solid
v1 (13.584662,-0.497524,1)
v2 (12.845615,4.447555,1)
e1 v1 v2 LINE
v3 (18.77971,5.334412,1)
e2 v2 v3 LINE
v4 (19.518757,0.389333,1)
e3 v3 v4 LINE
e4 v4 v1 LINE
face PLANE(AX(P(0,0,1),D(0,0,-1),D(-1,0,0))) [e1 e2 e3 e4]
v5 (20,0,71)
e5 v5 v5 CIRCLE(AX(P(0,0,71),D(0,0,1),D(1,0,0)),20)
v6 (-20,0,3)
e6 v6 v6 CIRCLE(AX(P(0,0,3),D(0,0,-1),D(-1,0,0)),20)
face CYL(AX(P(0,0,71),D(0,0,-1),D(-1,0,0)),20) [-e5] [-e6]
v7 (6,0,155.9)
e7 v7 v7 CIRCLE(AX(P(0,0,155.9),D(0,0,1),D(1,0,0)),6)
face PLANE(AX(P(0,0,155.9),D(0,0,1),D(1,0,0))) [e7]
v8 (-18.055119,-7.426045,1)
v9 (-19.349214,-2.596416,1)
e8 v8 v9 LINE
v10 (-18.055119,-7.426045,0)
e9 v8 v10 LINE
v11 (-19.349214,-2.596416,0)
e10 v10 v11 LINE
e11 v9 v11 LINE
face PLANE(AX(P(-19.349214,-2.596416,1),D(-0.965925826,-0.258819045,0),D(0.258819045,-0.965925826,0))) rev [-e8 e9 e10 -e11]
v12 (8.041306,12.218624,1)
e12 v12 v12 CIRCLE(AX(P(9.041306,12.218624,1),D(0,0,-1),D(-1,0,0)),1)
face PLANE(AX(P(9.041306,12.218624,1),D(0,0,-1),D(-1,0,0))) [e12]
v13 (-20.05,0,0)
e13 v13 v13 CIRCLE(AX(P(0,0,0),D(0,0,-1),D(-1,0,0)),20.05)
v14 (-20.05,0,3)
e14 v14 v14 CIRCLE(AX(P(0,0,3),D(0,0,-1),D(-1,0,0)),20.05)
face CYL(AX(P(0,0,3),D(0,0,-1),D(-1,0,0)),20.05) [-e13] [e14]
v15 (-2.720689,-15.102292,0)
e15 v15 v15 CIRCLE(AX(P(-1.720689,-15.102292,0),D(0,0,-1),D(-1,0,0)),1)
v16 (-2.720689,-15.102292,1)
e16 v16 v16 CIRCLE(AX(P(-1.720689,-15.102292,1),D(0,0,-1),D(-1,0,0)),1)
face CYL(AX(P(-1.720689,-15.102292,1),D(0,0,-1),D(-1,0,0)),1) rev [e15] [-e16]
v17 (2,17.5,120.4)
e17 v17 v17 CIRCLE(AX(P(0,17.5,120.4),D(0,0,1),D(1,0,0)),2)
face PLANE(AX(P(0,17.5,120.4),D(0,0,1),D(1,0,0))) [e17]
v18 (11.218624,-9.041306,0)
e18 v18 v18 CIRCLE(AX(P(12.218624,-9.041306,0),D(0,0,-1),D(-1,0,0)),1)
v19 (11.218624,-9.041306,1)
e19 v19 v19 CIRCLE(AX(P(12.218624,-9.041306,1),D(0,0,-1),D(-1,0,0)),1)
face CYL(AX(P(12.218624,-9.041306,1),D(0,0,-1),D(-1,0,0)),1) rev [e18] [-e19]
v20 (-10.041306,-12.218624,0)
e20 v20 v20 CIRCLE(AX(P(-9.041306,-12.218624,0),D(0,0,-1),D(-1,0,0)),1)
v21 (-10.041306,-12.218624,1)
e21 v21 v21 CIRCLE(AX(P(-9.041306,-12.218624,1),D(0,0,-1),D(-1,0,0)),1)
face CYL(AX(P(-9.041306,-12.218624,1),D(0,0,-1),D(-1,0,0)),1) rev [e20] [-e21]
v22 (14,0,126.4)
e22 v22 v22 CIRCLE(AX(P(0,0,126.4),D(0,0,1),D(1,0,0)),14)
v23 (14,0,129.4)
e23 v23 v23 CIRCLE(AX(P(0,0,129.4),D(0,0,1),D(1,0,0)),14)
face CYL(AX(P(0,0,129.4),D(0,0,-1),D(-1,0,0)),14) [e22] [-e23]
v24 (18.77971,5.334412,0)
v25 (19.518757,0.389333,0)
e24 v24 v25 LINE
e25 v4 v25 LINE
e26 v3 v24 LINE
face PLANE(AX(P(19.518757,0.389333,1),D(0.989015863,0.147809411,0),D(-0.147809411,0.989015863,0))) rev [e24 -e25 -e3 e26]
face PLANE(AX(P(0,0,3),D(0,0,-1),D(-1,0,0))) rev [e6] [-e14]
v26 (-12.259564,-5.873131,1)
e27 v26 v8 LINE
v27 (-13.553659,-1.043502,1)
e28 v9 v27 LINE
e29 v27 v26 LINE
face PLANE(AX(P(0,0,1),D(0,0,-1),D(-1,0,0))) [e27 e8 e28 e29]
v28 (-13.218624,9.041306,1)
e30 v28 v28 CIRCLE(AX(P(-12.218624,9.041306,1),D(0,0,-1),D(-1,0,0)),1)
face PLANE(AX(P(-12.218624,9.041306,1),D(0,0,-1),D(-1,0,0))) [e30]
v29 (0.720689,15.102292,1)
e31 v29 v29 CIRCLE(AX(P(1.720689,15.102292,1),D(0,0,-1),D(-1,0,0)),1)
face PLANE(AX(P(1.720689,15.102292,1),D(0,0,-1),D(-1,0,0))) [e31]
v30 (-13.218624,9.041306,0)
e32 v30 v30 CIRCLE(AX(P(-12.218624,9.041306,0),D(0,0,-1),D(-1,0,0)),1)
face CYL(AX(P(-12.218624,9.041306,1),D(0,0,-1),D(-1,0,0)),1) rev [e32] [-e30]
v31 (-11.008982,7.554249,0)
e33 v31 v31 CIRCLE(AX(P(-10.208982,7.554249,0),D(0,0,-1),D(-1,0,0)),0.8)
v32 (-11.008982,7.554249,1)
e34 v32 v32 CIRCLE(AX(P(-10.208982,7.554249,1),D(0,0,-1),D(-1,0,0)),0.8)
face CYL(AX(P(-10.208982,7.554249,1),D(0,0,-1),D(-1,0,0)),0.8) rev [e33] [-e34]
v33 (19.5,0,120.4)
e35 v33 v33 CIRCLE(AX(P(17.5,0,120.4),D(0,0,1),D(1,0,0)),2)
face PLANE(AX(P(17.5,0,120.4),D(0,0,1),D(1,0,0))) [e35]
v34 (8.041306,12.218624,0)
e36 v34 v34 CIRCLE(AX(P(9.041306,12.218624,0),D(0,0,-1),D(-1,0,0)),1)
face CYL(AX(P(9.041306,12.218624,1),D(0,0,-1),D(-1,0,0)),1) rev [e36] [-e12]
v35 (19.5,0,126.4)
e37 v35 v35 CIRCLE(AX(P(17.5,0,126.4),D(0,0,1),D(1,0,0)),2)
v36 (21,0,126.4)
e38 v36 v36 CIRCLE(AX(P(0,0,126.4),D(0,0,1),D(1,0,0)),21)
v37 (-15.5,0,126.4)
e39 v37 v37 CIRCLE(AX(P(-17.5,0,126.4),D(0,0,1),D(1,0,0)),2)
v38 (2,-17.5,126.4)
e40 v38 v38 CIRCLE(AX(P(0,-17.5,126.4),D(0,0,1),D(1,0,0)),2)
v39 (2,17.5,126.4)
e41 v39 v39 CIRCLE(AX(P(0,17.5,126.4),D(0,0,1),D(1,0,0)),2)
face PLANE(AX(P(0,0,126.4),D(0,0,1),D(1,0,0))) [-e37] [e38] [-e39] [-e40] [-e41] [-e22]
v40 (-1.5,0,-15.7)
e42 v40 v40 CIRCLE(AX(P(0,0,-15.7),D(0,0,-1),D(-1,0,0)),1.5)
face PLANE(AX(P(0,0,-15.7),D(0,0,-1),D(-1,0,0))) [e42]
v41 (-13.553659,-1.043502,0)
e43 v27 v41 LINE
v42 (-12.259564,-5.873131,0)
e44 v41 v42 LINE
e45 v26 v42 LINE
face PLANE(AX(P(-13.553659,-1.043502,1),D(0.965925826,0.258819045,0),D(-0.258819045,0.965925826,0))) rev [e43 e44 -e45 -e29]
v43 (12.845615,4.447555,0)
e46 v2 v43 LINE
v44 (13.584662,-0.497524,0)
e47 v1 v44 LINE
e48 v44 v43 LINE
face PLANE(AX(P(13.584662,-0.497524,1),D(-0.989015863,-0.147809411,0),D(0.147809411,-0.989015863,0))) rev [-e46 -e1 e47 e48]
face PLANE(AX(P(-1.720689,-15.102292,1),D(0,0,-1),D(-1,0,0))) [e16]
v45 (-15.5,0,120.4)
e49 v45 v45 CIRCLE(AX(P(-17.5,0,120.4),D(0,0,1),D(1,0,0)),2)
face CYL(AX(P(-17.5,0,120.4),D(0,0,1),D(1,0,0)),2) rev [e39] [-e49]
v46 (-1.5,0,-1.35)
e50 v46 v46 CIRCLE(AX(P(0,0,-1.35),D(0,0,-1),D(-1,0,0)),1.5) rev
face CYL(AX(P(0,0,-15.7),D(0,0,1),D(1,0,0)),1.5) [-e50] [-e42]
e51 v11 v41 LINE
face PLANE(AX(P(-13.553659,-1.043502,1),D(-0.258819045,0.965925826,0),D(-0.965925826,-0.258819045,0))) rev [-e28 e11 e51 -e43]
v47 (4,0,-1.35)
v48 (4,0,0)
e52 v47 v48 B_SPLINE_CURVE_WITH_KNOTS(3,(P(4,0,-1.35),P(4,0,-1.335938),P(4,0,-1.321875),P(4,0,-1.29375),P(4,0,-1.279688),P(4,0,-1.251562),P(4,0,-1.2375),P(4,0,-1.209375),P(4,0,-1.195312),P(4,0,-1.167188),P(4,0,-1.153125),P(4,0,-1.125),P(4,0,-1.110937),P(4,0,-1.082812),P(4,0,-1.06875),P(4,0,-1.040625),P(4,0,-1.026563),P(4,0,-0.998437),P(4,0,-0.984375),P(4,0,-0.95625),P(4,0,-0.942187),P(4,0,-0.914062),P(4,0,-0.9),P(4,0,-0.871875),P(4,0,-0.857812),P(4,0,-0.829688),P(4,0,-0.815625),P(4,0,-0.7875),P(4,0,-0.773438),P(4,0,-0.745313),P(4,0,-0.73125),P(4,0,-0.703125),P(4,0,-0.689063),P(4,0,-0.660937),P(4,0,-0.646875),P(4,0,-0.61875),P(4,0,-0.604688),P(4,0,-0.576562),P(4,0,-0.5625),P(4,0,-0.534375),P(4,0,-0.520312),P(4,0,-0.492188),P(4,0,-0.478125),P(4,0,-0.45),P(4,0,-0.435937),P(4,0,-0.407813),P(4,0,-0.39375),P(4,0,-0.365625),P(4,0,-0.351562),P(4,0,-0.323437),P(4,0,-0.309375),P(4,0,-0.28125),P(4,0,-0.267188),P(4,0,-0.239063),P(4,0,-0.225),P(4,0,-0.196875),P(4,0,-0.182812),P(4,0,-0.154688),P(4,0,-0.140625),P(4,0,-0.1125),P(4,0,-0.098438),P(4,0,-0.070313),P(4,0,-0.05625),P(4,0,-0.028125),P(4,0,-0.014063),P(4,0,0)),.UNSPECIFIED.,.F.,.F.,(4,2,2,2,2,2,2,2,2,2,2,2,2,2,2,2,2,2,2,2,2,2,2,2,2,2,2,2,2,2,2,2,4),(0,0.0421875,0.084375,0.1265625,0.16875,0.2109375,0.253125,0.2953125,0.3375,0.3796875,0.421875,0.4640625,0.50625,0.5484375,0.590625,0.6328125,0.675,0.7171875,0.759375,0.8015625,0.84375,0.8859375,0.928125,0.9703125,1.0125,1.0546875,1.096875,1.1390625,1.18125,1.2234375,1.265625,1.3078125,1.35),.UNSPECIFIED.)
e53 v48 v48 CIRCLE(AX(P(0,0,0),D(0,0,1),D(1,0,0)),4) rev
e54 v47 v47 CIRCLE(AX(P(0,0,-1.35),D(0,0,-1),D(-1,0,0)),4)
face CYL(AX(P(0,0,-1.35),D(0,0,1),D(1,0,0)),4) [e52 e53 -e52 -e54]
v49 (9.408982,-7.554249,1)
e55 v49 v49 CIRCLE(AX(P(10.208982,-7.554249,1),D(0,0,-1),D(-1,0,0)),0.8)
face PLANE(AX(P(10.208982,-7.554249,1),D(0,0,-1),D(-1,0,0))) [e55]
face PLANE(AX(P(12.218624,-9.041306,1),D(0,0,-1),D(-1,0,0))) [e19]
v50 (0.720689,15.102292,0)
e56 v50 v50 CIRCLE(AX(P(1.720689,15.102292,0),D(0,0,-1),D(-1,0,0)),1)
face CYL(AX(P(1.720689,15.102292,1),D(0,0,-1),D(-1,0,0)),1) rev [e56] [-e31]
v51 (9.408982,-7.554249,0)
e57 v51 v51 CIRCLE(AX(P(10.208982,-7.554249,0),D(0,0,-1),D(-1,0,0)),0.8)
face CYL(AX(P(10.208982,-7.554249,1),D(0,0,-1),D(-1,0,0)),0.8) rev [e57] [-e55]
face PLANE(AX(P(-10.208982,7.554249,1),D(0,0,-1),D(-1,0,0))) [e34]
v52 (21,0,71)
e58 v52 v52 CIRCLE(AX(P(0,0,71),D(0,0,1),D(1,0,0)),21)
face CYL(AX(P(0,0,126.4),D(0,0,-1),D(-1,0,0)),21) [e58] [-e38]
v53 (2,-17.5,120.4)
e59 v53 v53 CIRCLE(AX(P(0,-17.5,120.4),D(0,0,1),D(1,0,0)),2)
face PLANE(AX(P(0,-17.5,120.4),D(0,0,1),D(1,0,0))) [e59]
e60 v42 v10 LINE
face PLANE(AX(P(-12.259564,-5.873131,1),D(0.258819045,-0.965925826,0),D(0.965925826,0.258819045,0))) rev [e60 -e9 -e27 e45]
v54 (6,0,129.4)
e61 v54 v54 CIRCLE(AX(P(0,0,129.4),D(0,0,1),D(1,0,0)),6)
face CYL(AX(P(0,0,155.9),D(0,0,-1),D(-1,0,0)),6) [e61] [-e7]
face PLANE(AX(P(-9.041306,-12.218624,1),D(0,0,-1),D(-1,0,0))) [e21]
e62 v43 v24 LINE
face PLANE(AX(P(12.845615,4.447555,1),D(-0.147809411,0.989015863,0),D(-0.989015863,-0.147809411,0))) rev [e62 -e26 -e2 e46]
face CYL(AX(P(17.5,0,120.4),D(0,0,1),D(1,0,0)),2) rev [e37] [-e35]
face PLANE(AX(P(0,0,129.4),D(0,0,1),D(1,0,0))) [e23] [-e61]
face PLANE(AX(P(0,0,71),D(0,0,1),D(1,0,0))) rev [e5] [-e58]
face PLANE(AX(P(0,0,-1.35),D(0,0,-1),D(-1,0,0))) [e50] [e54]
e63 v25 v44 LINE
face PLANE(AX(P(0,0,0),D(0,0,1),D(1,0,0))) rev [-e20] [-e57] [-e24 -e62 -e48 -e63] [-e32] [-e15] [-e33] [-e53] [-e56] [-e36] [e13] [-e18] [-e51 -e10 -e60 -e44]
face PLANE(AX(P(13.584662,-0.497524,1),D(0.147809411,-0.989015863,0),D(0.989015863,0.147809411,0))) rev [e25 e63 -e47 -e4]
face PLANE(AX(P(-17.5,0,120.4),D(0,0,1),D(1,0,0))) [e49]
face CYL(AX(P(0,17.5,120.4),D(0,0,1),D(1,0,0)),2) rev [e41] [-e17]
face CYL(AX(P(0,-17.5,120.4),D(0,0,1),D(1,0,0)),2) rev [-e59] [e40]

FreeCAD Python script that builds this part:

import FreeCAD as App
import Part
import Sketcher
from FreeCAD import Vector
Q = App.Units.Quantity

doc = App.newDocument("Part")
params = doc.addObject("Spreadsheet::Sheet", "Params")
for row, (alias, value) in enumerate([
    ("sketch1_diameter", "40 mm"),
    ("pad1_length", "71 mm"),
    ("sketch2_diameter", "8 mm"),
    ("pad2_length", "1.35 mm"),
    ("sketch3_diameter", "3 mm"),
    ("pad3_length", "15.7 mm"),
    ("sketch4_diameter", "40.1 mm"),
    ("pad4_length", "3 mm"),
    ("sketch5_diameter", "2 mm"),
    ("sketch5_diameter2", "1.6 mm"),
    ("sketch5_length", "6 mm"),
    ("sketch5_length2", "5 mm"),
    ("pocket1_length", "1 mm"),
    ("sketch6_diameter", "42 mm"),
    ("pad5_length", "55.4 mm"),
    ("sketch7_diameter", "28 mm"),
    ("pad6_length", "3 mm"),
    ("sketch8_diameter", "12 mm"),
    ("pad7_length", "26.5 mm"),
    ("sketch9_diameter", "4 mm"),
    ("pocket2_length", "6 mm"),
], start=1):
    params.set(f"A{row}", alias)
    params.set(f"B{row}", "=" + value)
    params.setAlias(f"B{row}", alias)

body = doc.addObject("PartDesign::Body", "Body")

sketch1 = body.newObject("Sketcher::SketchObject", "Sketch")
sketch1.AttachmentSupport = (doc.getObject("XY_Plane"), [""])
sketch1.MapMode = "FlatFace"
sketch1.addGeometry(Part.Circle(Vector(0, 0, 0), Vector(0, 0, 1), 20), False)
sketch1.addConstraint([
    Sketcher.Constraint("Coincident", 0, 3, -1, 1),
    Sketcher.Constraint("Diameter", 0, Q("40 mm")),
])
sketch1.setExpression("Constraints[1]", "Params.sketch1_diameter")
pad1 = body.newObject("PartDesign::Pad", "Pad")
pad1.Profile = sketch1
pad1.setExpression("Length", "Params.pad1_length")

sketch2 = body.newObject("Sketcher::SketchObject", "Sketch001")
sketch2.AttachmentSupport = (doc.getObject("XY_Plane"), [""])
sketch2.MapMode = "FlatFace"
sketch2.addGeometry(Part.Circle(Vector(0, 0, 0), Vector(0, 0, 1), 4), False)
sketch2.addConstraint([
    Sketcher.Constraint("Coincident", 0, 3, -1, 1),
    Sketcher.Constraint("Diameter", 0, Q("8 mm")),
])
sketch2.setExpression("Constraints[1]", "Params.sketch2_diameter")
pad2 = body.newObject("PartDesign::Pad", "Pad001")
pad2.Profile = sketch2
pad2.setExpression("Length", "Params.pad2_length")
pad2.Reversed = True

sketch3 = body.newObject("Sketcher::SketchObject", "Sketch002")
sketch3.AttachmentSupport = (doc.getObject("XY_Plane"), [""])
sketch3.MapMode = "FlatFace"
sketch3.addGeometry(Part.Circle(Vector(0, 0, 0), Vector(0, 0, 1), 1.5), False)
sketch3.addConstraint([
    Sketcher.Constraint("Coincident", 0, 3, -1, 1),
    Sketcher.Constraint("Diameter", 0, Q("3 mm")),
])
sketch3.setExpression("Constraints[1]", "Params.sketch3_diameter")
pad3 = body.newObject("PartDesign::Pad", "Pad002")
pad3.Profile = sketch3
pad3.setExpression("Length", "Params.pad3_length")
pad3.Reversed = True

sketch4 = body.newObject("Sketcher::SketchObject", "Sketch003")
sketch4.AttachmentSupport = (doc.getObject("XY_Plane"), [""])
sketch4.MapMode = "FlatFace"
sketch4.addGeometry(Part.Circle(Vector(0, 0, 0), Vector(0, 0, 1), 20), False)
sketch4.addConstraint([
    Sketcher.Constraint("Coincident", 0, 3, -1, 1),
    Sketcher.Constraint("Diameter", 0, Q("40.1 mm")),
])
sketch4.setExpression("Constraints[1]", "Params.sketch4_diameter")
pad4 = body.newObject("PartDesign::Pad", "Pad003")
pad4.Profile = sketch4
pad4.setExpression("Length", "Params.pad4_length")

sketch5 = body.newObject("Sketcher::SketchObject", "Sketch004")
sketch5.AttachmentSupport = (doc.getObject("XY_Plane"), [""])
sketch5.MapMode = "FlatFace"
sketch5.addGeometry([
    Part.Circle(Vector(-1.7, -15.1, 0), Vector(0, 0, 1), 1),
    Part.Circle(Vector(1.7, 15.1, 0), Vector(0, 0, 1), 1),
    Part.Circle(Vector(12.2, -9, 0), Vector(0, 0, 1), 1),
    Part.Circle(Vector(-10.2, 7.6, 0), Vector(0, 0, 1), 0.8),
    Part.Circle(Vector(10.2, -7.6, 0), Vector(0, 0, 1), 0.8),
    Part.Circle(Vector(9, 12.2, 0), Vector(0, 0, 1), 1),
    Part.Circle(Vector(-12.2, 9, 0), Vector(0, 0, 1), 1),
    Part.Circle(Vector(-9, -12.2, 0), Vector(0, 0, 1), 1),
    Part.LineSegment(Vector(-19.3, -2.6, 0), Vector(-13.6, -1, 0)),
    Part.LineSegment(Vector(-13.6, -1, 0), Vector(-12.3, -5.9, 0)),
    Part.LineSegment(Vector(-12.3, -5.9, 0), Vector(-18.1, -7.4, 0)),
    Part.LineSegment(Vector(-18.1, -7.4, 0), Vector(-19.3, -2.6, 0)),
    Part.LineSegment(Vector(19.5, 0.4, 0), Vector(13.6, -0.5, 0)),
    Part.LineSegment(Vector(13.6, -0.5, 0), Vector(12.8, 4.4, 0)),
    Part.LineSegment(Vector(12.8, 4.4, 0), Vector(18.8, 5.3, 0)),
    Part.LineSegment(Vector(18.8, 5.3, 0), Vector(19.5, 0.4, 0)),
], False)
sketch5.addConstraint([
    Sketcher.Constraint("Coincident", 8, 2, 9, 1),
    Sketcher.Constraint("Coincident", 9, 2, 10, 1),
    Sketcher.Constraint("Coincident", 10, 2, 11, 1),
    Sketcher.Constraint("Coincident", 11, 2, 8, 1),
    Sketcher.Constraint("Coincident", 12, 2, 13, 1),
    Sketcher.Constraint("Coincident", 13, 2, 14, 1),
    Sketcher.Constraint("Coincident", 14, 2, 15, 1),
    Sketcher.Constraint("Coincident", 15, 2, 12, 1),
    Sketcher.Constraint("Equal", 0, 1),
    Sketcher.Constraint("Equal", 1, 2),
    Sketcher.Constraint("Equal", 3, 4),
    Sketcher.Constraint("Equal", 2, 5),
    Sketcher.Constraint("Equal", 5, 6),
    Sketcher.Constraint("Equal", 6, 7),
    Sketcher.Constraint("Symmetric", 0, 3, 1, 3, -1, 1),
    Sketcher.Constraint("Symmetric", 3, 3, 4, 3, -1, 1),
    Sketcher.Constraint("Symmetric", 2, 3, 6, 3, -1, 1),
    Sketcher.Constraint("Symmetric", 5, 3, 7, 3, -1, 1),
    Sketcher.Constraint("Perpendicular", 8, 9),
    Sketcher.Constraint("Perpendicular", 9, 10),
    Sketcher.Constraint("Perpendicular", 10, 11),
    Sketcher.Constraint("Perpendicular", 12, 13),
    Sketcher.Constraint("Perpendicular", 13, 14),
    Sketcher.Constraint("Perpendicular", 14, 15),
    Sketcher.Constraint("Equal", 10, 12),
    Sketcher.Constraint("Equal", 11, 13),
    Sketcher.Constraint("Diameter", 0, Q("2 mm")),
    Sketcher.Constraint("Diameter", 3, Q("1.6 mm")),
    Sketcher.Constraint("Angle", 8, Q("15 deg")),
    Sketcher.Constraint("Distance", 8, Q("6 mm")),
    Sketcher.Constraint("Distance", 9, Q("5 mm")),
    Sketcher.Constraint("Angle", 12, Q("-171.5 deg")),
    Sketcher.Constraint("DistanceY", 8, 2, -1, 1, Q("1.043502 mm")),
    Sketcher.Constraint("DistanceY", 2, 3, 1, 3, Q("24.143599 mm")),
    Sketcher.Constraint("DistanceY", 4, 3, 3, 3, Q("15.108499 mm")),
    Sketcher.Constraint("DistanceX", 0, 3, -1, 1, Q("1.720689 mm")),
    Sketcher.Constraint("DistanceX", 8, 2, -1, 1, Q("13.553659 mm")),
    Sketcher.Constraint("DistanceX", -1, 1, 14, 2, Q("18.77971 mm")),
    Sketcher.Constraint("DistanceY", -1, 1, 14, 2, Q("5.334412 mm")),
    Sketcher.Constraint("DistanceX", 3, 3, 1, 3, Q("11.929671 mm")),
    Sketcher.Constraint("DistanceY", 0, 3, 3, 3, Q("22.656542 mm")),
    Sketcher.Constraint("DistanceX", 3, 3, 5, 3, Q("19.250288 mm")),
    Sketcher.Constraint("DistanceY", 2, 3, 5, 3, Q("21.259931 mm")),
    Sketcher.Constraint("DistanceX", 6, 3, 5, 3, Q("21.259931 mm")),
])
sketch5.setExpression("Constraints[26]", "Params.sketch5_diameter")
sketch5.setExpression("Constraints[27]", "Params.sketch5_diameter2")
sketch5.setExpression("Constraints[29]", "Params.sketch5_length")
sketch5.setExpression("Constraints[30]", "Params.sketch5_length2")
pocket1 = body.newObject("PartDesign::Pocket", "Pocket")
pocket1.Profile = sketch5
pocket1.setExpression("Length", "Params.pocket1_length")
pocket1.Reversed = True

sketch6 = body.newObject("Sketcher::SketchObject", "Sketch005")
sketch6.AttachmentSupport = (doc.getObject("XY_Plane"), [""])
sketch6.MapMode = "FlatFace"
sketch6.AttachmentOffset = App.Placement(Vector(0, 0, 71), App.Rotation())
sketch6.addGeometry(Part.Circle(Vector(0, 0, 0), Vector(0, 0, 1), 21), False)
sketch6.addConstraint([
    Sketcher.Constraint("Coincident", 0, 3, -1, 1),
    Sketcher.Constraint("Diameter", 0, Q("42 mm")),
])
sketch6.setExpression("Constraints[1]", "Params.sketch6_diameter")
pad5 = body.newObject("PartDesign::Pad", "Pad004")
pad5.Profile = sketch6
pad5.setExpression("Length", "Params.pad5_length")

sketch7 = body.newObject("Sketcher::SketchObject", "Sketch006")
sketch7.AttachmentSupport = (doc.getObject("XY_Plane"), [""])
sketch7.MapMode = "FlatFace"
sketch7.AttachmentOffset = App.Placement(Vector(0, 0, 126.4), App.Rotation())
sketch7.addGeometry(Part.Circle(Vector(0, 0, 0), Vector(0, 0, 1), 14), False)
sketch7.addConstraint([
    Sketcher.Constraint("Coincident", 0, 3, -1, 1),
    Sketcher.Constraint("Diameter", 0, Q("28 mm")),
])
sketch7.setExpression("Constraints[1]", "Params.sketch7_diameter")
pad6 = body.newObject("PartDesign::Pad", "Pad005")
pad6.Profile = sketch7
pad6.setExpression("Length", "Params.pad6_length")

sketch8 = body.newObject("Sketcher::SketchObject", "Sketch007")
sketch8.AttachmentSupport = (doc.getObject("XY_Plane"), [""])
sketch8.MapMode = "FlatFace"
sketch8.AttachmentOffset = App.Placement(Vector(0, 0, 129.4), App.Rotation())
sketch8.addGeometry(Part.Circle(Vector(0, 0, 0), Vector(0, 0, 1), 6), False)
sketch8.addConstraint([
    Sketcher.Constraint("Coincident", 0, 3, -1, 1),
    Sketcher.Constraint("Diameter", 0, Q("12 mm")),
])
sketch8.setExpression("Constraints[1]", "Params.sketch8_diameter")
pad7 = body.newObject("PartDesign::Pad", "Pad006")
pad7.Profile = sketch8
pad7.setExpression("Length", "Params.pad7_length")

sketch9 = body.newObject("Sketcher::SketchObject", "Sketch008")
sketch9.AttachmentSupport = (doc.getObject("XY_Plane"), [""])
sketch9.MapMode = "FlatFace"
sketch9.AttachmentOffset = App.Placement(Vector(0, 0, 126.4), App.Rotation())
sketch9.addGeometry([
    Part.Circle(Vector(0, -17.5, 0), Vector(0, 0, 1), 2),
    Part.Circle(Vector(-17.5, 0, 0), Vector(0, 0, 1), 2),
    Part.Circle(Vector(0, 17.5, 0), Vector(0, 0, 1), 2),
    Part.Circle(Vector(17.5, 0, 0), Vector(0, 0, 1), 2),
], False)
sketch9.addConstraint([
    Sketcher.Constraint("Equal", 0, 1),
    Sketcher.Constraint("Equal", 1, 2),
    Sketcher.Constraint("Equal", 2, 3),
    Sketcher.Constraint("Symmetric", 0, 3, 2, 3, -1, 1),
    Sketcher.Constraint("Symmetric", 1, 3, 3, 3, -1, 1),
    Sketcher.Constraint("PointOnObject", 0, 3, -2),
    Sketcher.Constraint("PointOnObject", 1, 3, -1),
    Sketcher.Constraint("Diameter", 0, Q("4 mm")),
    Sketcher.Constraint("DistanceY", 0, 3, 2, 3, Q("35 mm")),
    Sketcher.Constraint("DistanceX", 1, 3, 3, 3, Q("35 mm")),
])
sketch9.setExpression("Constraints[7]", "Params.sketch9_diameter")
pocket2 = body.newObject("PartDesign::Pocket", "Pocket001")
pocket2.Profile = sketch9
pocket2.setExpression("Length", "Params.pocket2_length")

doc.recompute()
